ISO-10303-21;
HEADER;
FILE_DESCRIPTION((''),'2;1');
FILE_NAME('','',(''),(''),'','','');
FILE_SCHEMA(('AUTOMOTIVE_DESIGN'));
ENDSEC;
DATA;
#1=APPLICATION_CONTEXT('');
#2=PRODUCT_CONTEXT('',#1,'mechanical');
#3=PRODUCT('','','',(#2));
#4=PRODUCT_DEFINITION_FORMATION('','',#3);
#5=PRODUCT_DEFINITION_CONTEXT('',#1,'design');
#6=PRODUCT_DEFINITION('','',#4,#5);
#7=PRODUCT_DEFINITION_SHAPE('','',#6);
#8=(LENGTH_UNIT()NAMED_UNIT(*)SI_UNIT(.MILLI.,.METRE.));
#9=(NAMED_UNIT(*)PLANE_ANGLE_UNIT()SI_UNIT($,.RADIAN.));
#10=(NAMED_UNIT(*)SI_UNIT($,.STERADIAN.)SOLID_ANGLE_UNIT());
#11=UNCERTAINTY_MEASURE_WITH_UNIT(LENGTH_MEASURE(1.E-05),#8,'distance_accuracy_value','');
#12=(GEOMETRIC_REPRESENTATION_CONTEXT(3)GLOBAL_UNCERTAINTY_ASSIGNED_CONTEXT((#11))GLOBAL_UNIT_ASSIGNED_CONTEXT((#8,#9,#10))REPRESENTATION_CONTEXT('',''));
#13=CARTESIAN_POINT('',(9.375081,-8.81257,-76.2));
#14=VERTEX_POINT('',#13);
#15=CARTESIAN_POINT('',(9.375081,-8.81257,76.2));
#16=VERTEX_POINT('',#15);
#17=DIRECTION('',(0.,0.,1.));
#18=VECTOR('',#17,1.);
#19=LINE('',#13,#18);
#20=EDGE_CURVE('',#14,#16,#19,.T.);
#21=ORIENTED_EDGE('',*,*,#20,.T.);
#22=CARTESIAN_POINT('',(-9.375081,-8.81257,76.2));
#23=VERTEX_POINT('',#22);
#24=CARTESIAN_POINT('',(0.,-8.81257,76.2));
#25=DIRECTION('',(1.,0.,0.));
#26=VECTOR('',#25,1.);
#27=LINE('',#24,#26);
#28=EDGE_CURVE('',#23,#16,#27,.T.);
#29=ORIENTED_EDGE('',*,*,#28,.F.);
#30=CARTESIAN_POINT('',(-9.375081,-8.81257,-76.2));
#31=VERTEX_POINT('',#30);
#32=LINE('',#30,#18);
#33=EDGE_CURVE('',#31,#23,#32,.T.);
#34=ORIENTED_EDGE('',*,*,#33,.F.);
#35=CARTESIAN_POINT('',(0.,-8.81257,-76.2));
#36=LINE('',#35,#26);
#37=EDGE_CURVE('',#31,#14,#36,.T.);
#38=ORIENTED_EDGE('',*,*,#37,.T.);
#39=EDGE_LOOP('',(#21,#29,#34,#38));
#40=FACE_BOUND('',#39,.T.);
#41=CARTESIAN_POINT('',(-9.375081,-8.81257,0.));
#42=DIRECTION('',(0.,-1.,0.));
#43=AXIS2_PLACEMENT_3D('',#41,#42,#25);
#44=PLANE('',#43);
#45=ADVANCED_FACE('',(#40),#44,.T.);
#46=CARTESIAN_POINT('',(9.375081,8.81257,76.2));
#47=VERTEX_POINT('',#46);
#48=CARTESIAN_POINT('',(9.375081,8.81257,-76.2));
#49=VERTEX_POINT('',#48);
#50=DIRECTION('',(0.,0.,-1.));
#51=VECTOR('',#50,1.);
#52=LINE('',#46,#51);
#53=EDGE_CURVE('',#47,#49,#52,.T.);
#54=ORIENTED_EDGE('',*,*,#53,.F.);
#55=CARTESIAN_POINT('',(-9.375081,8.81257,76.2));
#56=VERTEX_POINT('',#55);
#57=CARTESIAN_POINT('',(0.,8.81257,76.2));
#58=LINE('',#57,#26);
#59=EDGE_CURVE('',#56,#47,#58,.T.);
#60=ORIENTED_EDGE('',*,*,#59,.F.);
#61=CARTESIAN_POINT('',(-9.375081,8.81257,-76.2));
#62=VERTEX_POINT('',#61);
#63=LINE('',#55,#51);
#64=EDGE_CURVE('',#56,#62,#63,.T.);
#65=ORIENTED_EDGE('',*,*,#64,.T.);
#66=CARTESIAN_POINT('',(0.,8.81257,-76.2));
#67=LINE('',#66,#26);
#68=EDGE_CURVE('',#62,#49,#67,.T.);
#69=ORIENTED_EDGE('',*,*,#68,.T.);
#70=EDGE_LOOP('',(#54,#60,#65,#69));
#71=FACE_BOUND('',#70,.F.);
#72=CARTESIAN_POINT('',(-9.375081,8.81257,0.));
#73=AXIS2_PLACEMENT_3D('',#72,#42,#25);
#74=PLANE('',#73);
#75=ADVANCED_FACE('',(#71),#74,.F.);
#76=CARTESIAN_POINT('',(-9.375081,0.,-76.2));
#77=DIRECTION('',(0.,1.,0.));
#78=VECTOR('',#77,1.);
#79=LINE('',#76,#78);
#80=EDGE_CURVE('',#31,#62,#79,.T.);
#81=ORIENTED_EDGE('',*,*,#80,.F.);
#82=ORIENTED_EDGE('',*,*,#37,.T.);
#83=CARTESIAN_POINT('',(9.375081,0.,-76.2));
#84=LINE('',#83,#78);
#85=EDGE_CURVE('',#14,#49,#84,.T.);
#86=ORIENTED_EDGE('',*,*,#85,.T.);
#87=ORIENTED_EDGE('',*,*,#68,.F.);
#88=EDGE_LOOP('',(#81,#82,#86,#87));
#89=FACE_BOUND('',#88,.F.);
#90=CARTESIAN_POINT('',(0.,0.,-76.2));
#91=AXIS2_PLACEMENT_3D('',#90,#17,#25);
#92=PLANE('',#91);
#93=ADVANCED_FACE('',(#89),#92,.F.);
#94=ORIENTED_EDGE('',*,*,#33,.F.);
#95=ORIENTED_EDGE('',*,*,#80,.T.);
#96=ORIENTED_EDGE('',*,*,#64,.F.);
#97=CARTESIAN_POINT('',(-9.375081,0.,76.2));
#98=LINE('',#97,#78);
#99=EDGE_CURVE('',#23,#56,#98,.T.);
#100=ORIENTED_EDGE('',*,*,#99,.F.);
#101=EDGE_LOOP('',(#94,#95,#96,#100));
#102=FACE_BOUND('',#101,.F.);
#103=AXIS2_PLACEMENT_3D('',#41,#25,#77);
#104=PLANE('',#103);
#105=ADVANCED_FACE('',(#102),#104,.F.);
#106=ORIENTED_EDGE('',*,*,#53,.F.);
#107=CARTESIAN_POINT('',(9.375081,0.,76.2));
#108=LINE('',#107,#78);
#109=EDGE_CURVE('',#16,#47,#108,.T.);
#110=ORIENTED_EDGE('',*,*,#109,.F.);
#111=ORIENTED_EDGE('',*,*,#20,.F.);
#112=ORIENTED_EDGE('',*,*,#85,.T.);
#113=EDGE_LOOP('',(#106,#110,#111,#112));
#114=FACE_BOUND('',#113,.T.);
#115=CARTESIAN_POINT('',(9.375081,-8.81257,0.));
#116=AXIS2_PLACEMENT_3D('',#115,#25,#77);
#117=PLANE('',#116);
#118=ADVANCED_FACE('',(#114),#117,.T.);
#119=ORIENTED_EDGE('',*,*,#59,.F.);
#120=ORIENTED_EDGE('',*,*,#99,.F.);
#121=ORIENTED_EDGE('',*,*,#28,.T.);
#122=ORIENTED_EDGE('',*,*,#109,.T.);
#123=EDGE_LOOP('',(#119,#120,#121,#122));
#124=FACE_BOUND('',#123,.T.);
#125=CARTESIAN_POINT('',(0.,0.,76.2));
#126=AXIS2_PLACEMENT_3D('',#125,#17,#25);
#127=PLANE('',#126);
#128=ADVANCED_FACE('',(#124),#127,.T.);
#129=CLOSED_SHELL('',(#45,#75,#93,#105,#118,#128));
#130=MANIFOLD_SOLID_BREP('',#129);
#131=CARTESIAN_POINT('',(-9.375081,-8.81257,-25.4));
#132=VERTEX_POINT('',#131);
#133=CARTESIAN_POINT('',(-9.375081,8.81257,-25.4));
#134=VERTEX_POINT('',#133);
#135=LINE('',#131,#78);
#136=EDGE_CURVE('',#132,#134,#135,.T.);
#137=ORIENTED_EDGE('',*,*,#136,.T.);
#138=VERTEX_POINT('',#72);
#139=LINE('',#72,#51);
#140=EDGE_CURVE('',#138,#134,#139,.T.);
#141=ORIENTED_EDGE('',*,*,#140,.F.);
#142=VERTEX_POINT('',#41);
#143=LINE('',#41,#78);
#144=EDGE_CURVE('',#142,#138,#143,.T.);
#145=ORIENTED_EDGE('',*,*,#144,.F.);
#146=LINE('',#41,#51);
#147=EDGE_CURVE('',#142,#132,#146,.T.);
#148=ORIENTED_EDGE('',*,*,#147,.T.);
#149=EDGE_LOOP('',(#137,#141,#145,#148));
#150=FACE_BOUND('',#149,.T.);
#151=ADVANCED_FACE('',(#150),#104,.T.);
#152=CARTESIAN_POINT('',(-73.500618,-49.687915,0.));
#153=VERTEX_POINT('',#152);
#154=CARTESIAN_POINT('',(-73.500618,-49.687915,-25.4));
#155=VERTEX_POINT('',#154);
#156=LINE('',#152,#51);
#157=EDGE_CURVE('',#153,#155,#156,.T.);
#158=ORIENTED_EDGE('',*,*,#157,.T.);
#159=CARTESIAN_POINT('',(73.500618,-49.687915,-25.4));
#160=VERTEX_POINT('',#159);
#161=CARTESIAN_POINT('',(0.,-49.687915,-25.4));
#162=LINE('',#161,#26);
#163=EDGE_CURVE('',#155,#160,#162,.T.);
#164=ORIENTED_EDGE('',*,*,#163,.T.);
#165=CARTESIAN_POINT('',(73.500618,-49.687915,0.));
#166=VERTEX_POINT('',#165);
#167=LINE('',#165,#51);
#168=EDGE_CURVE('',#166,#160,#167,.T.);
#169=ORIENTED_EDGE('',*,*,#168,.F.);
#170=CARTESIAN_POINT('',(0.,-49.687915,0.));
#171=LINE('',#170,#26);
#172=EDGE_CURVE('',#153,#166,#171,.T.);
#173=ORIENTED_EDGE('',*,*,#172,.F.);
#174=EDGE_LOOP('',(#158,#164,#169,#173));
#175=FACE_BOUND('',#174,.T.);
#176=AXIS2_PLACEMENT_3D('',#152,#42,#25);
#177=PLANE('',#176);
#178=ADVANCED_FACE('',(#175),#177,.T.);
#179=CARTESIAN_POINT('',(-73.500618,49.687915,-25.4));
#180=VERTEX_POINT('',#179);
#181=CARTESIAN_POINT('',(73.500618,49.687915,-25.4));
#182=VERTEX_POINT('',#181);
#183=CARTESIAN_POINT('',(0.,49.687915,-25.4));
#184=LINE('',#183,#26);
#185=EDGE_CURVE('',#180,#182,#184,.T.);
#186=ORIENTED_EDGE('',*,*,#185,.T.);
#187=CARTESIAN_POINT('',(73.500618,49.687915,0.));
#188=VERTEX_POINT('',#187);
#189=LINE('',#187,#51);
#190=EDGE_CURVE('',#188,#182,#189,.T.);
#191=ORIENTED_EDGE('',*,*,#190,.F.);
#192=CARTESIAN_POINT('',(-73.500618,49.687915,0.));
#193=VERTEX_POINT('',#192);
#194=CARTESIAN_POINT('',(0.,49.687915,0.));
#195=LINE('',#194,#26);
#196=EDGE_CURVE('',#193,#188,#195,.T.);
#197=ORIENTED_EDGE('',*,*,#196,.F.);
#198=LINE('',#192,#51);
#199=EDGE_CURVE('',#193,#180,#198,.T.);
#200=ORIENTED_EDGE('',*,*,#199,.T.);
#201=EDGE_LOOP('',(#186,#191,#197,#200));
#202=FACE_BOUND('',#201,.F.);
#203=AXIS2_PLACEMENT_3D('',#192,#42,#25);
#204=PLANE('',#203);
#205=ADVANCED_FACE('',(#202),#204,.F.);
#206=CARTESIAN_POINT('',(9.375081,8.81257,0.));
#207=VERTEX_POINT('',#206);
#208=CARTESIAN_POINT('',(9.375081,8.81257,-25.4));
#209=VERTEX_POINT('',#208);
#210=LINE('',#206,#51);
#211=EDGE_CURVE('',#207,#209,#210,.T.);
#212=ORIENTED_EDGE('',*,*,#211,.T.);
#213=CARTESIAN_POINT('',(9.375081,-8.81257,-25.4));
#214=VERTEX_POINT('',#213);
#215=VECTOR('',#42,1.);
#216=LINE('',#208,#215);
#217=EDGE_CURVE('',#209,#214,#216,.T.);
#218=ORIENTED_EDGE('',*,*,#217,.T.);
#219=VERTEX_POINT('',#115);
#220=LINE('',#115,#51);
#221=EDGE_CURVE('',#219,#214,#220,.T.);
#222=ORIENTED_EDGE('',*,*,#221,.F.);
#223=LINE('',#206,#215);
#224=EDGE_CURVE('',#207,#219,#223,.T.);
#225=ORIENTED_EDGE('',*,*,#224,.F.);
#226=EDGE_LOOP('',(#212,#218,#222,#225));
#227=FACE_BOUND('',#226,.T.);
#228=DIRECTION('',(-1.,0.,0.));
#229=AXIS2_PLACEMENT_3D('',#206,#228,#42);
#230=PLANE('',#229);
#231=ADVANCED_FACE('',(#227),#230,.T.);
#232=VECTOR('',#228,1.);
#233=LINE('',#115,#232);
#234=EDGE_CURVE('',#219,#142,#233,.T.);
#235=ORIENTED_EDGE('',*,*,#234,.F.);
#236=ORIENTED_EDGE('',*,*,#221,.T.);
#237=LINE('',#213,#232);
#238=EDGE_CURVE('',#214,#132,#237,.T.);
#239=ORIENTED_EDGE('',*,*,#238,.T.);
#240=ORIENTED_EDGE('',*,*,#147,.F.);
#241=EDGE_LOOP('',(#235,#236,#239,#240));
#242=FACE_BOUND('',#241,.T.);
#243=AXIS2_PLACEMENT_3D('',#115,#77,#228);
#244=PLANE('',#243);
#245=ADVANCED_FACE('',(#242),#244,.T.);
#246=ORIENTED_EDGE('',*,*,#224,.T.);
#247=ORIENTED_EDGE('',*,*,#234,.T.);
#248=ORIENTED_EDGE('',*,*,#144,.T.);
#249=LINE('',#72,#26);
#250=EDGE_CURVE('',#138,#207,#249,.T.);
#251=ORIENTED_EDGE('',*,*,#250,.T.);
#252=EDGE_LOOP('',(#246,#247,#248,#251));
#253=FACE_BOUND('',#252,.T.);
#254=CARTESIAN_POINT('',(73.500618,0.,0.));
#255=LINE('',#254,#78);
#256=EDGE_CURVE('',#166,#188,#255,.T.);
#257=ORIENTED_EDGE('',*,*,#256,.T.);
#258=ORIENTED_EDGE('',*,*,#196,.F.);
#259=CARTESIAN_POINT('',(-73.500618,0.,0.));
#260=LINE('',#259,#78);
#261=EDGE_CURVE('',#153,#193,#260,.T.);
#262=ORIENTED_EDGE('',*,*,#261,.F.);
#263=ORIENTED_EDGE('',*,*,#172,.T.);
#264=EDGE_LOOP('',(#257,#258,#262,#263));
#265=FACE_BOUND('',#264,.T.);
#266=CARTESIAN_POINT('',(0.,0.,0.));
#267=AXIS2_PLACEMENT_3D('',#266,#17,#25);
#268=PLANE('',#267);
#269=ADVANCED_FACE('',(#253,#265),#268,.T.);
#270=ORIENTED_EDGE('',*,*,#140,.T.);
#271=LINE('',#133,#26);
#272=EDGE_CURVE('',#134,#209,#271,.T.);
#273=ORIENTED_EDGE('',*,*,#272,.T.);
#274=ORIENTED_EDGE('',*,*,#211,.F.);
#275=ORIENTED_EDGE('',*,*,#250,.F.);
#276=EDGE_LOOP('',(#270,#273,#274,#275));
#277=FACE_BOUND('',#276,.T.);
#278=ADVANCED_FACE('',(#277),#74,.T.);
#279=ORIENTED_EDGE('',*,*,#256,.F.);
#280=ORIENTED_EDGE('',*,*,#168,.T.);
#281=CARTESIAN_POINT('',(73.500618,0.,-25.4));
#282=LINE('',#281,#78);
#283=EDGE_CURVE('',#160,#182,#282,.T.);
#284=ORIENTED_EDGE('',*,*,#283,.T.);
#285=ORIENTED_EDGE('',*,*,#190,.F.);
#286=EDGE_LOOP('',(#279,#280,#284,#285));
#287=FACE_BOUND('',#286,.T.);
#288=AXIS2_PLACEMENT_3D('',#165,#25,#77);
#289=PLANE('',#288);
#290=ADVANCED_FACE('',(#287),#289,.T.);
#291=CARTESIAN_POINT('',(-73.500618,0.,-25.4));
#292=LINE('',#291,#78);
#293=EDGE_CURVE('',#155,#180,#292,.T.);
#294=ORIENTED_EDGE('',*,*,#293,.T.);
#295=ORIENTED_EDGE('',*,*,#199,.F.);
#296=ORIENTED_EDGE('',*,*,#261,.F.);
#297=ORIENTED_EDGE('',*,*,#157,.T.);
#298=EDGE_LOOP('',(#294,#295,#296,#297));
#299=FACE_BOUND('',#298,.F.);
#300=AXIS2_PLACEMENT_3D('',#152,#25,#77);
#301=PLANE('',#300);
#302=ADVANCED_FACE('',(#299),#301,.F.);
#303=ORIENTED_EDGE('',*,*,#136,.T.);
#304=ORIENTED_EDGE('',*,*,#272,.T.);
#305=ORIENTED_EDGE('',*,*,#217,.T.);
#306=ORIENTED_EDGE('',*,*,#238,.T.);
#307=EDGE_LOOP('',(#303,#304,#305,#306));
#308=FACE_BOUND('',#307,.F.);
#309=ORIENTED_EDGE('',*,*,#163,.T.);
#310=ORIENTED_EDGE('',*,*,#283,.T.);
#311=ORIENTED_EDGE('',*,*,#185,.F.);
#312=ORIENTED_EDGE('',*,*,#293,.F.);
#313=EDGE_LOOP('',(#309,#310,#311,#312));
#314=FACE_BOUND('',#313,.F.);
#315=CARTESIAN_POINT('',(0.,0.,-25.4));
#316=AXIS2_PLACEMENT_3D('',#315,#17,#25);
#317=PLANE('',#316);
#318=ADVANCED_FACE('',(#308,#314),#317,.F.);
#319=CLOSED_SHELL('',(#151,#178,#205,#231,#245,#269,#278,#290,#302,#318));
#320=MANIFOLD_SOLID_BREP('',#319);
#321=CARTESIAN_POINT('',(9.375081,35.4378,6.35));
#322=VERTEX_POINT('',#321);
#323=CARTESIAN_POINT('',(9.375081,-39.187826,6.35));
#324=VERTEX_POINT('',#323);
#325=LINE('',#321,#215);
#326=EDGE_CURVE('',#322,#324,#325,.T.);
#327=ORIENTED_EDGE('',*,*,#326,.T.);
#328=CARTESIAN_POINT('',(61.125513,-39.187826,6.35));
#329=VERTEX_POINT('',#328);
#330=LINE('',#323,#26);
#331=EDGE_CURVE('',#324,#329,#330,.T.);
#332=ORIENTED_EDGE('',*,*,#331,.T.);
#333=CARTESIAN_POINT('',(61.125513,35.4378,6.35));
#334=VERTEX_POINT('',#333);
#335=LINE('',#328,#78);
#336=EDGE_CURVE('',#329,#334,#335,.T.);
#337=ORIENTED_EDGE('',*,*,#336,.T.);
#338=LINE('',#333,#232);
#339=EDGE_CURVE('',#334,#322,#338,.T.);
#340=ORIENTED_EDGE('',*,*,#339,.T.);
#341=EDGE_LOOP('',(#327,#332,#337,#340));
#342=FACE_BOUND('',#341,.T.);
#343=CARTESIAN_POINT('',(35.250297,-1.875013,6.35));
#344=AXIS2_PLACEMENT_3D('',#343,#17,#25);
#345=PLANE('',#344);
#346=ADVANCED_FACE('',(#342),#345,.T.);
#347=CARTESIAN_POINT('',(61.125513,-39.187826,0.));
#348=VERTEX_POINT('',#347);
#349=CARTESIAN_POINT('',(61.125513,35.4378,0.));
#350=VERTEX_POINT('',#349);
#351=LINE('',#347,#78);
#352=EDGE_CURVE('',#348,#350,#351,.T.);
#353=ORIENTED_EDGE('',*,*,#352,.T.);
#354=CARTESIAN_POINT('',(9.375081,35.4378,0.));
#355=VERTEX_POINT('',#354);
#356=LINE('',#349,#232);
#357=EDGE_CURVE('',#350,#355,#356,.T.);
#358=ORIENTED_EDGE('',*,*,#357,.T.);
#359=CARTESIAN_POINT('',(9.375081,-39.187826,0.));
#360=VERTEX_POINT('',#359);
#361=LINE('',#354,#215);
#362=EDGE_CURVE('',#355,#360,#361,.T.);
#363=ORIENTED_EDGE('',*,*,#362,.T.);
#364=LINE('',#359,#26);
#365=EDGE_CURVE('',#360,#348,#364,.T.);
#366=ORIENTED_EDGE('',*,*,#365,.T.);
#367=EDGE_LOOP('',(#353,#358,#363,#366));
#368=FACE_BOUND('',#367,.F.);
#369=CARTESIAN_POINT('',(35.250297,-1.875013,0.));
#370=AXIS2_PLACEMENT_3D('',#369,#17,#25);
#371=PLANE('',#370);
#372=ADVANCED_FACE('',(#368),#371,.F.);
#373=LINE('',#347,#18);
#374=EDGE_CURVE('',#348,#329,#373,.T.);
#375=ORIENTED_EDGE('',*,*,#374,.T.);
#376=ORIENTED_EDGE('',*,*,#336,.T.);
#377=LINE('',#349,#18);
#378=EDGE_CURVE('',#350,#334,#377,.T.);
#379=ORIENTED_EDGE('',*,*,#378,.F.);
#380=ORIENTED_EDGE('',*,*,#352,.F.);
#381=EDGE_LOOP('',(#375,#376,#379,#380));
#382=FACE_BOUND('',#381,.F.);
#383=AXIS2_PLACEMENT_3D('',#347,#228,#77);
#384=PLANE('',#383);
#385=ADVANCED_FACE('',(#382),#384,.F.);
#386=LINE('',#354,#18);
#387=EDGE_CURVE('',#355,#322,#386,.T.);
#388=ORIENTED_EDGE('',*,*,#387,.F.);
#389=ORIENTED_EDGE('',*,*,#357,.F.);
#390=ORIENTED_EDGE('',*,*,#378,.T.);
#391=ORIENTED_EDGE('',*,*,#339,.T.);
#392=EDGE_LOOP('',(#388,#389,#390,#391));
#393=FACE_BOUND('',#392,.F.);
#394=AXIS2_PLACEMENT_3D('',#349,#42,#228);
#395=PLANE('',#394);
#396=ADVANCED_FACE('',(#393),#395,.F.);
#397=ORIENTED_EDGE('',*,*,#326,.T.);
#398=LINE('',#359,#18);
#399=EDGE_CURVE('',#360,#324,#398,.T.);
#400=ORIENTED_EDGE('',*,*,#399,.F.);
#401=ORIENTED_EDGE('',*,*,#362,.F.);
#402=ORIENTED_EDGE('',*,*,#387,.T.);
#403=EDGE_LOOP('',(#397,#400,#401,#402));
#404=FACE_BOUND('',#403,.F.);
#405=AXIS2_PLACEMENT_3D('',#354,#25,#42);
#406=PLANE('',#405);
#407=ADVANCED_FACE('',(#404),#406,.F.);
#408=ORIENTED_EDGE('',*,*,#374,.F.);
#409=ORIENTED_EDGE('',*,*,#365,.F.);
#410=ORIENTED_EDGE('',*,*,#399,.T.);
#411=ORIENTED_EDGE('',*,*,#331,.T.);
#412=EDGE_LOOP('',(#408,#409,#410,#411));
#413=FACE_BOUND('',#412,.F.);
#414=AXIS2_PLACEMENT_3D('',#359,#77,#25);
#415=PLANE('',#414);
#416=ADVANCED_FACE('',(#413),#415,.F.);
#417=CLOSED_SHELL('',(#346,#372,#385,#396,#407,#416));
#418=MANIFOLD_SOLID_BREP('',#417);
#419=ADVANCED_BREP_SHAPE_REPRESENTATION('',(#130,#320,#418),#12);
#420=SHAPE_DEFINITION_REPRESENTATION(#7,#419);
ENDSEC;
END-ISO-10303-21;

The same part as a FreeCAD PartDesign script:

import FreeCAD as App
import Part
import Sketcher

V = App.Vector
Q = App.Units.Quantity


def add_polygon(sketch, points):
    """Adds a closed chain of lines whose ends are joined by coincident constraints."""
    first, n = sketch.GeometryCount, len(points)
    for a, b in zip(points, points[1:] + points[:1]):
        sketch.addGeometry(Part.LineSegment(App.Vector(*a, 0), App.Vector(*b, 0)), False)
    for i in range(n):
        sketch.addConstraint(Sketcher.Constraint("Coincident", first + i, 2, first + (i + 1) % n, 1))

doc = App.newDocument("Part")
body = doc.addObject("PartDesign::Body", "Body")

sketch1 = body.newObject("Sketcher::SketchObject", "Sketch")
sketch1.AttachmentSupport = (doc.getObject("XY_Plane"), [""])
sketch1.MapMode = "FlatFace"
add_polygon(sketch1, [(-74, 50), (-74, -50), (74, -50), (74, 50)])
add_polygon(sketch1, [(-9, 9), (9, 9), (9, -9), (-9, -9)])
sketch1.addConstraint([
    Sketcher.Constraint("Vertical", 0),
    Sketcher.Constraint("Horizontal", 1),
    Sketcher.Constraint("Vertical", 2),
    Sketcher.Constraint("Horizontal", 3),
    Sketcher.Constraint("Horizontal", 4),
    Sketcher.Constraint("Vertical", 5),
    Sketcher.Constraint("Horizontal", 6),
    Sketcher.Constraint("Vertical", 7),
    Sketcher.Constraint("Symmetric", 0, 2, 2, 2, -1, 1),
    Sketcher.Constraint("Symmetric", 4, 2, 6, 2, -1, 1),
    Sketcher.Constraint("DistanceX", 4, 1, 4, 2, Q("18.750162 mm")),
    Sketcher.Constraint("DistanceY", 0, 2, 0, 1, Q("99.37583 mm")),
    Sketcher.Constraint("DistanceY", 5, 2, 5, 1, Q("17.62514 mm")),
    Sketcher.Constraint("DistanceX", 3, 2, 4, 2, Q("82.875699 mm")),
])
pad1 = body.newObject("PartDesign::Pad", "Pad")
pad1.Profile = sketch1
pad1.Length = Q("1 in")
pad1.Reversed = True
body2 = doc.addObject("PartDesign::Body", "Body001")

sketch2 = body2.newObject("Sketcher::SketchObject", "Sketch001")
sketch2.AttachmentSupport = (doc.getObject("XY_Plane001"), [""])
sketch2.MapMode = "FlatFace"
add_polygon(sketch2, [(-9, 9), (-9, -9), (9, -9), (9, 9)])
sketch2.addConstraint([
    Sketcher.Constraint("Vertical", 0),
    Sketcher.Constraint("Horizontal", 1),
    Sketcher.Constraint("Vertical", 2),
    Sketcher.Constraint("Horizontal", 3),
    Sketcher.Constraint("Symmetric", 0, 2, 2, 2, -1, 1),
    Sketcher.Constraint("DistanceX", 1, 1, 1, 2, Q("18.750162 mm")),
    Sketcher.Constraint("DistanceY", 0, 2, 0, 1, Q("17.62514 mm")),
])
pad2 = body2.newObject("PartDesign::Pad", "Pad001")
pad2.Profile = sketch2
pad2.Length = Q("6 in")
pad2.Midplane = True
body3 = doc.addObject("PartDesign::Body", "Body002")

sketch3 = body3.newObject("Sketcher::SketchObject", "Sketch002")
sketch3.AttachmentSupport = (doc.getObject("XY_Plane002"), [""])
sketch3.MapMode = "FlatFace"
add_polygon(sketch3, [(9, -39), (61, -39), (61, 35), (9, 35)])
sketch3.addConstraint([
    Sketcher.Constraint("Horizontal", 0),
    Sketcher.Constraint("Vertical", 1),
    Sketcher.Constraint("Horizontal", 2),
    Sketcher.Constraint("Vertical", 3),
    Sketcher.Constraint("DistanceX", 0, 1, 0, 2, Q("51.750432 mm")),
    Sketcher.Constraint("DistanceY", -1, 1, 1, 2, Q("35.4378 mm")),
    Sketcher.Constraint("DistanceY", 1, 1, 1, 2, Q("74.625626 mm")),
    Sketcher.Constraint("DistanceX", -1, 1, 2, 2, Q("9.375081 mm")),
])
pad3 = body3.newObject("PartDesign::Pad", "Pad002")
pad3.Profile = sketch3
pad3.Length = Q("0.25 in")

doc.recompute()
